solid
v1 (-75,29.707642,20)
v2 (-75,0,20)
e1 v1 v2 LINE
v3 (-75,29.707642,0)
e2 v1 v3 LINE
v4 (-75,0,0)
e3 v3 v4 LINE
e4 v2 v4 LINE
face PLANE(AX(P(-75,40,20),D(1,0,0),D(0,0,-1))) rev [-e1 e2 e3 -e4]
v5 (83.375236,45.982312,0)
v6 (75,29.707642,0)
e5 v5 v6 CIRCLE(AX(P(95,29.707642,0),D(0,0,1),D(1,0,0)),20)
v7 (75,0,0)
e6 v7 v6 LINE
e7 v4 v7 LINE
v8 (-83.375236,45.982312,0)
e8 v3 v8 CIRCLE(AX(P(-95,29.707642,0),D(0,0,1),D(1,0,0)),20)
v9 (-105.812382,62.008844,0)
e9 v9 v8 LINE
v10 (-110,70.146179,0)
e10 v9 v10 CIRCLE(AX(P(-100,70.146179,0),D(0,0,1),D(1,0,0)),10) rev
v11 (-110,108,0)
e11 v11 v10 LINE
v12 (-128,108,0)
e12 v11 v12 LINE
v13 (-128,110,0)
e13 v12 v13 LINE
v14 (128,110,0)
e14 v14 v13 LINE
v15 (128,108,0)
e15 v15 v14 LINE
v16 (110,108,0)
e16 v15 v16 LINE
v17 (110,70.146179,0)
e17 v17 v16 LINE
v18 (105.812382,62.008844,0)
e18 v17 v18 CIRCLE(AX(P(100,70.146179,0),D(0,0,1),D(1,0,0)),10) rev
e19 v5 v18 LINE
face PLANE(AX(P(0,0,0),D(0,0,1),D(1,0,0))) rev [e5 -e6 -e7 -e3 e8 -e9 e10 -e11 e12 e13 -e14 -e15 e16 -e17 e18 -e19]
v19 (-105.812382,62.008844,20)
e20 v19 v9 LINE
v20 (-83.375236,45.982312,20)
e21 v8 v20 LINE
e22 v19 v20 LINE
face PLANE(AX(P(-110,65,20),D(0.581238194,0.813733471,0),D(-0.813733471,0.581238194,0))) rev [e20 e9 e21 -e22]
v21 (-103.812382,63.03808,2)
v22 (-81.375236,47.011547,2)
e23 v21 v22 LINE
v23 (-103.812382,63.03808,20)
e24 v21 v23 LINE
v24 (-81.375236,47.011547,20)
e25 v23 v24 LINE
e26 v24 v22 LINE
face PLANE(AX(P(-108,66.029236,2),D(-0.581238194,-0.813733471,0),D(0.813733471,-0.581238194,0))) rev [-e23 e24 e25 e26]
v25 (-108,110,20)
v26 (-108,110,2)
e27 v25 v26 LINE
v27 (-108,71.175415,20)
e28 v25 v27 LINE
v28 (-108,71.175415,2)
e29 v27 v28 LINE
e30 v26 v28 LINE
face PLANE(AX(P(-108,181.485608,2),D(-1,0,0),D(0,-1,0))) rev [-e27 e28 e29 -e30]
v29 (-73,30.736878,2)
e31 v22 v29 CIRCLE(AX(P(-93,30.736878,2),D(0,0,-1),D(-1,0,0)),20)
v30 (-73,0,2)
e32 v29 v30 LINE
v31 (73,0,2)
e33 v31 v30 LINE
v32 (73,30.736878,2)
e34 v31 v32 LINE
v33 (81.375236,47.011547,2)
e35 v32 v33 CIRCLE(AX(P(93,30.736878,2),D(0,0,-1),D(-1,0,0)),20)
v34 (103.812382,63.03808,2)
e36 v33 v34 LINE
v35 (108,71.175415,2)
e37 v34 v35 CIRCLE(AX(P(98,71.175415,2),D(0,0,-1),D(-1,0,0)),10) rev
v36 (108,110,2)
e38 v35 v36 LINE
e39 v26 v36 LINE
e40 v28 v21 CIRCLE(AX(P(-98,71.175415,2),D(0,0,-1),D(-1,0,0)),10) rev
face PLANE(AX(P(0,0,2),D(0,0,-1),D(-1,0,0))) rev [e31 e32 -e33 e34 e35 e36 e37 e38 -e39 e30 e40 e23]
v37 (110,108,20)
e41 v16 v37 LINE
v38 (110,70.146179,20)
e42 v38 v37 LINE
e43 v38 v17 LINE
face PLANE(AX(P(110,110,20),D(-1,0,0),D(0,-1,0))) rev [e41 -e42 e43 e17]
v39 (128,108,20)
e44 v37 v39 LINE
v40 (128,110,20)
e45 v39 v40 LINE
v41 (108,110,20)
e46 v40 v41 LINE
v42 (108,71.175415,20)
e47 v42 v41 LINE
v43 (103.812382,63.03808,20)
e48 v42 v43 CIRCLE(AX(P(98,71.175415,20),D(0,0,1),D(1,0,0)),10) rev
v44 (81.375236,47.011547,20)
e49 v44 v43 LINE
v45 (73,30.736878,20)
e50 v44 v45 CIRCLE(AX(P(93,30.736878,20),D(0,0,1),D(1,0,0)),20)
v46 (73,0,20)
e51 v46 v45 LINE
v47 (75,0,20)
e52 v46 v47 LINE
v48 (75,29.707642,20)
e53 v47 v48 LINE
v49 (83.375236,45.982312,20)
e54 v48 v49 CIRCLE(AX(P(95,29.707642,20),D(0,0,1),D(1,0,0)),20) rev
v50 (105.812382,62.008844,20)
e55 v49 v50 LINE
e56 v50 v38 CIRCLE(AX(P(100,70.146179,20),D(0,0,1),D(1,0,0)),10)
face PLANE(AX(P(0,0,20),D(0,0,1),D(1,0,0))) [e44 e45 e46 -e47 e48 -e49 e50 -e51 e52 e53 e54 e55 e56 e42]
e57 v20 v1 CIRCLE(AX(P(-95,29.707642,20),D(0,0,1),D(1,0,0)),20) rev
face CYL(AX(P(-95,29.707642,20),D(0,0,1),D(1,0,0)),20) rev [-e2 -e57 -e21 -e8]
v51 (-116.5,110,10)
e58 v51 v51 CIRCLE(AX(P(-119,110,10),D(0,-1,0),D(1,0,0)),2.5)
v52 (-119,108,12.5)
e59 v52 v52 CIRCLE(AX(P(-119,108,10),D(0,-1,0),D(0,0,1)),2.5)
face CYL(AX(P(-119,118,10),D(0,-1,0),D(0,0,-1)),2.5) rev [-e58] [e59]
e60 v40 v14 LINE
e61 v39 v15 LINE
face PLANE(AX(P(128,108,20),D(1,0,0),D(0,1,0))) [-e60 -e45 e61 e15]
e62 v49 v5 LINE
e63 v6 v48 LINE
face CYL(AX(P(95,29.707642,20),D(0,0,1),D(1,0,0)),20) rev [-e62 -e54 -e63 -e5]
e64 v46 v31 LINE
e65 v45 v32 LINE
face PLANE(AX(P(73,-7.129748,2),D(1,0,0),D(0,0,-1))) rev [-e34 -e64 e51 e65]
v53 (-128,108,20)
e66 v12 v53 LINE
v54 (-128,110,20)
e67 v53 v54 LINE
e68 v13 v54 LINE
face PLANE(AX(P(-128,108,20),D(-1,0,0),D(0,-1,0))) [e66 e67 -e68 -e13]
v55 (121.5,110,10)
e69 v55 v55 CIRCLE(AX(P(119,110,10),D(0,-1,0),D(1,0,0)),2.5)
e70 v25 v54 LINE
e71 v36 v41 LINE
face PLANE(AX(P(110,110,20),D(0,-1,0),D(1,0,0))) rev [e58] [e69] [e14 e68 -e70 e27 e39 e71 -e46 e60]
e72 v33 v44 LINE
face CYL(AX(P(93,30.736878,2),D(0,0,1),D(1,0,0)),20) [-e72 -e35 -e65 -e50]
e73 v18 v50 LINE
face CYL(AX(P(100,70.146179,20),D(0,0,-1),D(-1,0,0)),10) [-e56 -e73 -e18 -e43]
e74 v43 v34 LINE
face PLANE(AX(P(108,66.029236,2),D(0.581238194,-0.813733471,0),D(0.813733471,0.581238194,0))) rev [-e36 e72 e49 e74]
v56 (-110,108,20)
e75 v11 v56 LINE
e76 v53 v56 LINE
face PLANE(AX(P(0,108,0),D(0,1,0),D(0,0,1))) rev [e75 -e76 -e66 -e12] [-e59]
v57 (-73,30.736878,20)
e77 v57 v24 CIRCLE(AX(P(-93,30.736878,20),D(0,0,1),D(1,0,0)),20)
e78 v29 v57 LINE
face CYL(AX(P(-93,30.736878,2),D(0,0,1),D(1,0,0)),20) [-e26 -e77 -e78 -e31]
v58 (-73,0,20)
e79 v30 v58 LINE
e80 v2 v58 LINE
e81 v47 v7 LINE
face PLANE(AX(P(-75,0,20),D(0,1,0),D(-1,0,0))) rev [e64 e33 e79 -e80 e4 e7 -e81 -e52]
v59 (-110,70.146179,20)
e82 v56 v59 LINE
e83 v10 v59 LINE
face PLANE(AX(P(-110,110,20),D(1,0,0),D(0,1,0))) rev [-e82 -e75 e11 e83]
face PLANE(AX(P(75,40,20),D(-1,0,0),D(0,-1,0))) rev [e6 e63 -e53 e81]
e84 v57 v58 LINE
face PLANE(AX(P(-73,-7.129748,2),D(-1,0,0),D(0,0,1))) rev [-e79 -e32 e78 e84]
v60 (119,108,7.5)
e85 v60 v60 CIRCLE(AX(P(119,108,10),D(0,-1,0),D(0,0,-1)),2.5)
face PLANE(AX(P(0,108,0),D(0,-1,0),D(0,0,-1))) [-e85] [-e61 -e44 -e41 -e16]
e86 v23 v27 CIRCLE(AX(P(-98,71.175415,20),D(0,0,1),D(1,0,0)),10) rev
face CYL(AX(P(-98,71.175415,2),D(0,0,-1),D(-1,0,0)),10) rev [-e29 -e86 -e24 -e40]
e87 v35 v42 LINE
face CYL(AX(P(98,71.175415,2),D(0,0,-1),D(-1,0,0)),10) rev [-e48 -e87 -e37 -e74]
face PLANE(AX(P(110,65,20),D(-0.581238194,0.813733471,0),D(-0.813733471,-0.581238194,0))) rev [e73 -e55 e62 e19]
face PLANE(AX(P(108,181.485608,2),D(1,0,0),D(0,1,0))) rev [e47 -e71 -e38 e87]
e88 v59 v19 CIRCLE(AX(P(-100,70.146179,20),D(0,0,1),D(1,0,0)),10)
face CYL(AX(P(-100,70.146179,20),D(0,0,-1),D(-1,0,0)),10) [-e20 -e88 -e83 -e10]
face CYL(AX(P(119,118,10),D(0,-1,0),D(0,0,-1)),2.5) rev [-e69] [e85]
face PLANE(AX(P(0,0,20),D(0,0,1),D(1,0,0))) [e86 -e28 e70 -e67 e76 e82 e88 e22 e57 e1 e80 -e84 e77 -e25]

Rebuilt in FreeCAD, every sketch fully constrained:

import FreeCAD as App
import Part
import Sketcher
from FreeCAD import Vector


def edges_at(feature, points):
    """Names of the edges that pass closest to the given points."""
    edges = feature.Shape.Edges
    near = lambda p: min(range(len(edges)), key=lambda i: edges[i].distToShape(Part.Vertex(*p))[0])
    return sorted({f"Edge{near(p) + 1}" for p in points})


def add_polygon(sketch, points):
    """Adds a closed chain of lines whose ends are joined by coincident constraints."""
    first, n = sketch.GeometryCount, len(points)
    for a, b in zip(points, points[1:] + points[:1]):
        sketch.addGeometry(Part.LineSegment(App.Vector(*a, 0), App.Vector(*b, 0)), False)
    for i in range(n):
        sketch.addConstraint(Sketcher.Constraint("Coincident", first + i, 2, first + (i + 1) % n, 1))

doc = App.newDocument("Part")
params = doc.addObject("Spreadsheet::Sheet", "Params")
for row, (alias, value) in enumerate([
    ("sketch1_width", "220 mm"),
    ("sketch1_width2", "150 mm"),
    ("sketch1_height", "45 mm"),
    ("sketch1_height2", "40 mm"),
    ("pad1_length", "20 mm"),
    ("sketch2_width", "146 mm"),
    ("sketch2_width2", "216 mm"),
    ("pocket1_length", "18 mm"),
    ("fillet_radius", "20 mm"),
    ("fillet2_radius", "10 mm"),
    ("sketch3_width", "20 mm"),
    ("pad2_length", "2 mm"),
    ("sketch4_diameter", "5 mm"),
    ("pocket2_length", "10 mm"),
], start=1):
    params.set(f"A{row}", alias)
    params.set(f"B{row}", "=" + value)
    params.setAlias(f"B{row}", alias)

body = doc.addObject("PartDesign::Body", "Body")

# Sketch on XY plane
sketch1 = body.newObject("Sketcher::SketchObject", "Sketch")
sketch1.AttachmentSupport = (doc.getObject("XY_Plane"), [""])
sketch1.MapMode = "FlatFace"
add_polygon(sketch1, [(110, 110), (-110, 110), (-110, 65), (-75, 40), (-75, 0), (75, 0), (75, 40), (110, 65)])  # lines 0-7
sketch1.addConstraint(Sketcher.Constraint("Horizontal", 0))
sketch1.addConstraint(Sketcher.Constraint("Vertical", 1))
sketch1.addConstraint(Sketcher.Constraint("Vertical", 3))
sketch1.addConstraint(Sketcher.Constraint("Horizontal", 4))
sketch1.addConstraint(Sketcher.Constraint("Vertical", 5))
sketch1.addConstraint(Sketcher.Constraint("Vertical", 7))
sketch1.addConstraint(Sketcher.Constraint("Symmetric", 3, 2, 4, 2, -1, 1))
sketch1.addConstraint(Sketcher.Constraint("Symmetric", 1, 2, 6, 2, -2))
sketch1.addConstraint(Sketcher.Constraint("Horizontal", 2, 2, 5, 2))
sketch1.addConstraint(Sketcher.Constraint("DistanceX", 0, 2, 0, 1, 220.0))
sketch1.addConstraint(Sketcher.Constraint("DistanceX", 4, 1, 4, 2, 150.0))
sketch1.addConstraint(Sketcher.Constraint("DistanceY", 1, 2, 1, 1, 45.0))
sketch1.addConstraint(Sketcher.Constraint("DistanceY", 3, 2, 3, 1, 40.0))
sketch1.addConstraint(Sketcher.Constraint("DistanceY", -1, 1, 0, 2, 110.0))
sketch1.setExpression("Constraints[17]", "Params.sketch1_width")
sketch1.setExpression("Constraints[18]", "Params.sketch1_width2")
sketch1.setExpression("Constraints[19]", "Params.sketch1_height")
sketch1.setExpression("Constraints[20]", "Params.sketch1_height2")
pad1 = body.newObject("PartDesign::Pad", "Pad")
pad1.Profile = sketch1
pad1.setExpression("Length", "Params.pad1_length")

# Sketch on XY plane
sketch2 = body.newObject("Sketcher::SketchObject", "Sketch001")
sketch2.AttachmentSupport = (doc.getObject("XY_Plane"), [""])
sketch2.MapMode = "FlatFace"
sketch2.AttachmentOffset = App.Placement(Vector(0, 0, 20), App.Rotation())
add_polygon(sketch2, [(-108, 181), (-108, 66), (-73, 41), (-73, -7), (73, -7), (73, 41), (108, 66), (108, 181)])  # lines 0-7
sketch2.addConstraint(Sketcher.Constraint("Vertical", 0))
sketch2.addConstraint(Sketcher.Constraint("Vertical", 2))
sketch2.addConstraint(Sketcher.Constraint("Horizontal", 3))
sketch2.addConstraint(Sketcher.Constraint("Vertical", 4))
sketch2.addConstraint(Sketcher.Constraint("Vertical", 6))
sketch2.addConstraint(Sketcher.Constraint("Horizontal", 7))
sketch2.addConstraint(Sketcher.Constraint("Symmetric", 1, 2, 4, 2, -2))
sketch2.addConstraint(Sketcher.Constraint("Symmetric", 0, 2, 5, 2, -2))
sketch2.addConstraint(Sketcher.Constraint("DistanceX", 3, 1, 3, 2, 146.0))
sketch2.addConstraint(Sketcher.Constraint("DistanceX", 7, 2, 7, 1, 216.0))
sketch2.addConstraint(Sketcher.Constraint("DistanceY", 1, 2, 0, 2, 25.0))
sketch2.addConstraint(Sketcher.Constraint("DistanceY", 0, 2, 0, 1, 115.456373))
sketch2.addConstraint(Sketcher.Constraint("DistanceY", 2, 2, 2, 1, 48.158984))
sketch2.addConstraint(Sketcher.Constraint("DistanceY", -1, 1, 6, 2, 181.485608))
sketch2.setExpression("Constraints[16]", "Params.sketch2_width")
sketch2.setExpression("Constraints[17]", "Params.sketch2_width2")
pocket1 = body.newObject("PartDesign::Pocket", "Pocket")
pocket1.Profile = sketch2
pocket1.setExpression("Length", "Params.pocket1_length")
doc.recompute()

fillet = body.newObject("PartDesign::Fillet", "Fillet")
fillet.Base = (pocket1, edges_at(pocket1, [
    (75, 40, 10),
    (-75, 40, 10),
    (73, 41.029, 11),
    (-73, 41.029, 11),
]))
fillet.setExpression("Radius", "Params.fillet_radius")
doc.recompute()

fillet2 = body.newObject("PartDesign::Fillet", "Fillet001")
fillet2.Base = (fillet, edges_at(fillet, [
    (110, 65, 10),
    (-110, 65, 10),
    (-108, 66.029, 11),
    (108, 66.029, 11),
]))
fillet2.setExpression("Radius", "Params.fillet2_radius")

# Sketch on XZ plane
sketch3 = body.newObject("Sketcher::SketchObject", "Sketch002")
sketch3.AttachmentSupport = (doc.getObject("XZ_Plane"), [""])
sketch3.MapMode = "FlatFace"
sketch3.AttachmentOffset = App.Placement(Vector(0, 0, -110), App.Rotation())
add_polygon(sketch3, [(-128, 0), (-128, 20), (-108, 20), (-108, 0)])  # lines 0-3
add_polygon(sketch3, [(108, 0), (108, 20), (128, 20), (128, 0)])  # lines 4-7
sketch3.addConstraint(Sketcher.Constraint("Vertical", 0))
sketch3.addConstraint(Sketcher.Constraint("Horizontal", 1))
sketch3.addConstraint(Sketcher.Constraint("Vertical", 2))
sketch3.addConstraint(Sketcher.Constraint("Horizontal", 3))
sketch3.addConstraint(Sketcher.Constraint("Vertical", 4))
sketch3.addConstraint(Sketcher.Constraint("Horizontal", 5))
sketch3.addConstraint(Sketcher.Constraint("Vertical", 6))
sketch3.addConstraint(Sketcher.Constraint("Horizontal", 7))
sketch3.addConstraint(Sketcher.Constraint("Symmetric", 3, 2, 6, 2, -1, 1))
sketch3.addConstraint(Sketcher.Constraint("Symmetric", 1, 2, 4, 2, -2))
sketch3.addConstraint(Sketcher.Constraint("PointOnObject", 2, 2, -1))
sketch3.addConstraint(Sketcher.Constraint("Equal", 7, 0))
sketch3.addConstraint(Sketcher.Constraint("DistanceX", 1, 1, 1, 2, 20.0))
sketch3.addConstraint(Sketcher.Constraint("DistanceX", 0, 2, -1, 1, 128.0))
sketch3.setExpression("Constraints[20]", "Params.sketch3_width")
pad2 = body.newObject("PartDesign::Pad", "Pad001")
pad2.Profile = sketch3
pad2.setExpression("Length", "Params.pad2_length")

# Sketch on XZ plane
sketch4 = body.newObject("Sketcher::SketchObject", "Sketch003")
sketch4.AttachmentSupport = (doc.getObject("XZ_Plane"), [""])
sketch4.MapMode = "FlatFace"
sketch4.AttachmentOffset = App.Placement(Vector(0, 0, -108), App.Rotation())
sketch4.addGeometry(Part.Circle(Vector(119, 10, 0), Vector(0, 0, 1), 2.5), False)
sketch4.addGeometry(Part.Circle(Vector(-119, 10, 0), Vector(0, 0, 1), 2.5), False)
sketch4.addConstraint(Sketcher.Constraint("Equal", 0, 1))
sketch4.addConstraint(Sketcher.Constraint("Symmetric", 0, 3, 1, 3, -2))
sketch4.addConstraint(Sketcher.Constraint("Diameter", 0, 5.0))
sketch4.addConstraint(Sketcher.Constraint("DistanceX", -1, 1, 0, 3, 119.0))
sketch4.addConstraint(Sketcher.Constraint("DistanceY", -1, 1, 0, 3, 10.0))
sketch4.setExpression("Constraints[2]", "Params.sketch4_diameter")
pocket2 = body.newObject("PartDesign::Pocket", "Pocket001")
pocket2.Profile = sketch4
pocket2.setExpression("Length", "Params.pocket2_length")

doc.recompute()
